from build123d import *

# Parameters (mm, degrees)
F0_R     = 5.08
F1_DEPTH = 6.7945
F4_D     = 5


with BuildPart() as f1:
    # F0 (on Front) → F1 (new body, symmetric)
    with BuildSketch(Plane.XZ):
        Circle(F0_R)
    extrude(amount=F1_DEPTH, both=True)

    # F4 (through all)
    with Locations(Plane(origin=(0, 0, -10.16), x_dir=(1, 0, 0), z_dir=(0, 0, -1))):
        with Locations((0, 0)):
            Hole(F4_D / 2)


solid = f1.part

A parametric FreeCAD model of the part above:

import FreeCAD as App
import Part
import Sketcher
Q = App.Units.Quantity

doc = App.newDocument("Part")
body = doc.addObject("PartDesign::Body", "Body")

# Sketch on XZ plane
sketch1 = body.newObject("Sketcher::SketchObject", "Sketch")
sketch1.AttachmentSupport = (doc.getObject("XZ_Plane"), [""])
sketch1.MapMode = "FlatFace"
sketch1.addGeometry(Part.Circle(App.Vector(0, 0, 0), App.Vector(0, 0, 1), 5), False)
sketch1.addConstraint(Sketcher.Constraint("Coincident", 0, 3, -1, 1))
sketch1.addConstraint(Sketcher.Constraint("Diameter", 0, Q("10.16 mm")))
pad1 = body.newObject("PartDesign::Pad", "Pad")
pad1.Profile = sketch1
pad1.Length = 13.589
pad1.Midplane = True

# Sketch on XY plane
sketch2 = body.newObject("Sketcher::SketchObject", "Sketch001")
sketch2.AttachmentSupport = (doc.getObject("XY_Plane"), [""])
sketch2.MapMode = "FlatFace"
sketch2.AttachmentOffset = App.Placement(App.Vector(0, 0, -10.16), App.Rotation())
sketch2.addGeometry(Part.Circle(App.Vector(0, 0, 0), App.Vector(0, 0, 1), 2.5), False)
sketch2.addConstraint(Sketcher.Constraint("Coincident", 0, 3, -1, 1))
sketch2.addConstraint(Sketcher.Constraint("Diameter", 0, Q("5 mm")))
doc.recompute()
hole = body.newObject("PartDesign::Hole", "Hole")
hole.Profile = sketch2
hole.ThreadType = "None"
hole.Diameter = 5
hole.DepthType = "ThroughAll"
hole.Reversed = True

doc.recompute()
